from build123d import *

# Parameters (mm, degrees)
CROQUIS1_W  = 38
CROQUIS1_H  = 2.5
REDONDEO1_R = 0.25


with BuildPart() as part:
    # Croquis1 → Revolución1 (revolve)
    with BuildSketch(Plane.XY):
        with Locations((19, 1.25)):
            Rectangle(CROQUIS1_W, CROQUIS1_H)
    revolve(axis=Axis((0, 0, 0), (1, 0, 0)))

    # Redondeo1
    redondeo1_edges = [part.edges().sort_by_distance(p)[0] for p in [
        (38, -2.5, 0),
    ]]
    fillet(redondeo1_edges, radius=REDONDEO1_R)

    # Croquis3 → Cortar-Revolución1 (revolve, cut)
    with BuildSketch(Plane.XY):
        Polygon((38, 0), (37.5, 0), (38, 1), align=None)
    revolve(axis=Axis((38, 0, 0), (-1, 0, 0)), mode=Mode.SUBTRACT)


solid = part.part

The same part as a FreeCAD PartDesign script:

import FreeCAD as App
import Part
import Sketcher


def edges_at(feature, points):
    """Names of the edges that pass closest to the given points."""
    edges = feature.Shape.Edges
    near = lambda p: min(range(len(edges)), key=lambda i: edges[i].distToShape(Part.Vertex(*p))[0])
    return sorted({f"Edge{near(p) + 1}" for p in points})

doc = App.newDocument("Part")
body = doc.addObject("PartDesign::Body", "Body")

# Sketch on XY plane
sketch1 = body.newObject("Sketcher::SketchObject", "Sketch")
sketch1.AttachmentSupport = (doc.getObject("XY_Plane"), [""])
sketch1.MapMode = "FlatFace"
sketch1.addGeometry(Part.LineSegment(App.Vector(0, 2.5, 0), App.Vector(0, 0, 0)), False)
sketch1.addGeometry(Part.LineSegment(App.Vector(0, 0, 0), App.Vector(38, 0, 0)), False)
sketch1.addGeometry(Part.LineSegment(App.Vector(38, 0, 0), App.Vector(38, 2.5, 0)), False)
sketch1.addGeometry(Part.LineSegment(App.Vector(38, 2.5, 0), App.Vector(0, 2.5, 0)), False)
sketch1.addConstraint(Sketcher.Constraint("Coincident", 0, 2, 1, 1))
sketch1.addConstraint(Sketcher.Constraint("Coincident", 1, 2, 2, 1))
sketch1.addConstraint(Sketcher.Constraint("Coincident", 2, 2, 3, 1))
sketch1.addConstraint(Sketcher.Constraint("Coincident", 3, 2, 0, 1))
sketch1.addConstraint(Sketcher.Constraint("Vertical", 0))
sketch1.addConstraint(Sketcher.Constraint("Horizontal", 1))
sketch1.addConstraint(Sketcher.Constraint("Vertical", 2))
sketch1.addConstraint(Sketcher.Constraint("Horizontal", 3))
sketch1.addConstraint(Sketcher.Constraint("Coincident", 0, 2, -1, 1))
sketch1.addConstraint(Sketcher.Constraint("DistanceX", 1, 1, 1, 2, 38.0))
sketch1.addConstraint(Sketcher.Constraint("DistanceY", 0, 2, 0, 1, 2.5))
revolution = body.newObject("PartDesign::Revolution", "Revolution")
revolution.Profile = sketch1
revolution.ReferenceAxis = (sketch1, ["H_Axis"])
revolution.Angle = 360
doc.recompute()

fillet = body.newObject("PartDesign::Fillet", "Fillet")
fillet.Base = (revolution, edges_at(revolution, [(38, -2.5, 0)]))
fillet.Radius = 0.25

# Sketch on XY plane
sketch2 = body.newObject("Sketcher::SketchObject", "Sketch001")
sketch2.AttachmentSupport = (doc.getObject("XY_Plane"), [""])
sketch2.MapMode = "FlatFace"
sketch2.addGeometry(Part.LineSegment(App.Vector(37.5, 0, 0), App.Vector(38, 0, 0)), False)
sketch2.addGeometry(Part.LineSegment(App.Vector(38, 0, 0), App.Vector(38, 1, 0)), False)
sketch2.addGeometry(Part.LineSegment(App.Vector(38, 1, 0), App.Vector(37.5, 0, 0)), False)
sketch2.addConstraint(Sketcher.Constraint("Coincident", 0, 2, 1, 1))
sketch2.addConstraint(Sketcher.Constraint("Coincident", 1, 2, 2, 1))
sketch2.addConstraint(Sketcher.Constraint("Coincident", 2, 2, 0, 1))
sketch2.addConstraint(Sketcher.Constraint("Horizontal", 0))
sketch2.addConstraint(Sketcher.Constraint("Vertical", 1))
sketch2.addConstraint(Sketcher.Constraint("PointOnObject", 0, 2, -1))
sketch2.addConstraint(Sketcher.Constraint("DistanceY", 1, 1, 1, 2, 1.0))
sketch2.addConstraint(Sketcher.Constraint("DistanceX", 0, 1, 0, 2, 0.5))
sketch2.addConstraint(Sketcher.Constraint("DistanceX", -1, 1, 0, 2, 38.0))
groove = body.newObject("PartDesign::Groove", "Groove")
groove.Profile = sketch2
groove.ReferenceAxis = (sketch2, ["H_Axis"])
groove.Angle = 360

doc.recompute()
